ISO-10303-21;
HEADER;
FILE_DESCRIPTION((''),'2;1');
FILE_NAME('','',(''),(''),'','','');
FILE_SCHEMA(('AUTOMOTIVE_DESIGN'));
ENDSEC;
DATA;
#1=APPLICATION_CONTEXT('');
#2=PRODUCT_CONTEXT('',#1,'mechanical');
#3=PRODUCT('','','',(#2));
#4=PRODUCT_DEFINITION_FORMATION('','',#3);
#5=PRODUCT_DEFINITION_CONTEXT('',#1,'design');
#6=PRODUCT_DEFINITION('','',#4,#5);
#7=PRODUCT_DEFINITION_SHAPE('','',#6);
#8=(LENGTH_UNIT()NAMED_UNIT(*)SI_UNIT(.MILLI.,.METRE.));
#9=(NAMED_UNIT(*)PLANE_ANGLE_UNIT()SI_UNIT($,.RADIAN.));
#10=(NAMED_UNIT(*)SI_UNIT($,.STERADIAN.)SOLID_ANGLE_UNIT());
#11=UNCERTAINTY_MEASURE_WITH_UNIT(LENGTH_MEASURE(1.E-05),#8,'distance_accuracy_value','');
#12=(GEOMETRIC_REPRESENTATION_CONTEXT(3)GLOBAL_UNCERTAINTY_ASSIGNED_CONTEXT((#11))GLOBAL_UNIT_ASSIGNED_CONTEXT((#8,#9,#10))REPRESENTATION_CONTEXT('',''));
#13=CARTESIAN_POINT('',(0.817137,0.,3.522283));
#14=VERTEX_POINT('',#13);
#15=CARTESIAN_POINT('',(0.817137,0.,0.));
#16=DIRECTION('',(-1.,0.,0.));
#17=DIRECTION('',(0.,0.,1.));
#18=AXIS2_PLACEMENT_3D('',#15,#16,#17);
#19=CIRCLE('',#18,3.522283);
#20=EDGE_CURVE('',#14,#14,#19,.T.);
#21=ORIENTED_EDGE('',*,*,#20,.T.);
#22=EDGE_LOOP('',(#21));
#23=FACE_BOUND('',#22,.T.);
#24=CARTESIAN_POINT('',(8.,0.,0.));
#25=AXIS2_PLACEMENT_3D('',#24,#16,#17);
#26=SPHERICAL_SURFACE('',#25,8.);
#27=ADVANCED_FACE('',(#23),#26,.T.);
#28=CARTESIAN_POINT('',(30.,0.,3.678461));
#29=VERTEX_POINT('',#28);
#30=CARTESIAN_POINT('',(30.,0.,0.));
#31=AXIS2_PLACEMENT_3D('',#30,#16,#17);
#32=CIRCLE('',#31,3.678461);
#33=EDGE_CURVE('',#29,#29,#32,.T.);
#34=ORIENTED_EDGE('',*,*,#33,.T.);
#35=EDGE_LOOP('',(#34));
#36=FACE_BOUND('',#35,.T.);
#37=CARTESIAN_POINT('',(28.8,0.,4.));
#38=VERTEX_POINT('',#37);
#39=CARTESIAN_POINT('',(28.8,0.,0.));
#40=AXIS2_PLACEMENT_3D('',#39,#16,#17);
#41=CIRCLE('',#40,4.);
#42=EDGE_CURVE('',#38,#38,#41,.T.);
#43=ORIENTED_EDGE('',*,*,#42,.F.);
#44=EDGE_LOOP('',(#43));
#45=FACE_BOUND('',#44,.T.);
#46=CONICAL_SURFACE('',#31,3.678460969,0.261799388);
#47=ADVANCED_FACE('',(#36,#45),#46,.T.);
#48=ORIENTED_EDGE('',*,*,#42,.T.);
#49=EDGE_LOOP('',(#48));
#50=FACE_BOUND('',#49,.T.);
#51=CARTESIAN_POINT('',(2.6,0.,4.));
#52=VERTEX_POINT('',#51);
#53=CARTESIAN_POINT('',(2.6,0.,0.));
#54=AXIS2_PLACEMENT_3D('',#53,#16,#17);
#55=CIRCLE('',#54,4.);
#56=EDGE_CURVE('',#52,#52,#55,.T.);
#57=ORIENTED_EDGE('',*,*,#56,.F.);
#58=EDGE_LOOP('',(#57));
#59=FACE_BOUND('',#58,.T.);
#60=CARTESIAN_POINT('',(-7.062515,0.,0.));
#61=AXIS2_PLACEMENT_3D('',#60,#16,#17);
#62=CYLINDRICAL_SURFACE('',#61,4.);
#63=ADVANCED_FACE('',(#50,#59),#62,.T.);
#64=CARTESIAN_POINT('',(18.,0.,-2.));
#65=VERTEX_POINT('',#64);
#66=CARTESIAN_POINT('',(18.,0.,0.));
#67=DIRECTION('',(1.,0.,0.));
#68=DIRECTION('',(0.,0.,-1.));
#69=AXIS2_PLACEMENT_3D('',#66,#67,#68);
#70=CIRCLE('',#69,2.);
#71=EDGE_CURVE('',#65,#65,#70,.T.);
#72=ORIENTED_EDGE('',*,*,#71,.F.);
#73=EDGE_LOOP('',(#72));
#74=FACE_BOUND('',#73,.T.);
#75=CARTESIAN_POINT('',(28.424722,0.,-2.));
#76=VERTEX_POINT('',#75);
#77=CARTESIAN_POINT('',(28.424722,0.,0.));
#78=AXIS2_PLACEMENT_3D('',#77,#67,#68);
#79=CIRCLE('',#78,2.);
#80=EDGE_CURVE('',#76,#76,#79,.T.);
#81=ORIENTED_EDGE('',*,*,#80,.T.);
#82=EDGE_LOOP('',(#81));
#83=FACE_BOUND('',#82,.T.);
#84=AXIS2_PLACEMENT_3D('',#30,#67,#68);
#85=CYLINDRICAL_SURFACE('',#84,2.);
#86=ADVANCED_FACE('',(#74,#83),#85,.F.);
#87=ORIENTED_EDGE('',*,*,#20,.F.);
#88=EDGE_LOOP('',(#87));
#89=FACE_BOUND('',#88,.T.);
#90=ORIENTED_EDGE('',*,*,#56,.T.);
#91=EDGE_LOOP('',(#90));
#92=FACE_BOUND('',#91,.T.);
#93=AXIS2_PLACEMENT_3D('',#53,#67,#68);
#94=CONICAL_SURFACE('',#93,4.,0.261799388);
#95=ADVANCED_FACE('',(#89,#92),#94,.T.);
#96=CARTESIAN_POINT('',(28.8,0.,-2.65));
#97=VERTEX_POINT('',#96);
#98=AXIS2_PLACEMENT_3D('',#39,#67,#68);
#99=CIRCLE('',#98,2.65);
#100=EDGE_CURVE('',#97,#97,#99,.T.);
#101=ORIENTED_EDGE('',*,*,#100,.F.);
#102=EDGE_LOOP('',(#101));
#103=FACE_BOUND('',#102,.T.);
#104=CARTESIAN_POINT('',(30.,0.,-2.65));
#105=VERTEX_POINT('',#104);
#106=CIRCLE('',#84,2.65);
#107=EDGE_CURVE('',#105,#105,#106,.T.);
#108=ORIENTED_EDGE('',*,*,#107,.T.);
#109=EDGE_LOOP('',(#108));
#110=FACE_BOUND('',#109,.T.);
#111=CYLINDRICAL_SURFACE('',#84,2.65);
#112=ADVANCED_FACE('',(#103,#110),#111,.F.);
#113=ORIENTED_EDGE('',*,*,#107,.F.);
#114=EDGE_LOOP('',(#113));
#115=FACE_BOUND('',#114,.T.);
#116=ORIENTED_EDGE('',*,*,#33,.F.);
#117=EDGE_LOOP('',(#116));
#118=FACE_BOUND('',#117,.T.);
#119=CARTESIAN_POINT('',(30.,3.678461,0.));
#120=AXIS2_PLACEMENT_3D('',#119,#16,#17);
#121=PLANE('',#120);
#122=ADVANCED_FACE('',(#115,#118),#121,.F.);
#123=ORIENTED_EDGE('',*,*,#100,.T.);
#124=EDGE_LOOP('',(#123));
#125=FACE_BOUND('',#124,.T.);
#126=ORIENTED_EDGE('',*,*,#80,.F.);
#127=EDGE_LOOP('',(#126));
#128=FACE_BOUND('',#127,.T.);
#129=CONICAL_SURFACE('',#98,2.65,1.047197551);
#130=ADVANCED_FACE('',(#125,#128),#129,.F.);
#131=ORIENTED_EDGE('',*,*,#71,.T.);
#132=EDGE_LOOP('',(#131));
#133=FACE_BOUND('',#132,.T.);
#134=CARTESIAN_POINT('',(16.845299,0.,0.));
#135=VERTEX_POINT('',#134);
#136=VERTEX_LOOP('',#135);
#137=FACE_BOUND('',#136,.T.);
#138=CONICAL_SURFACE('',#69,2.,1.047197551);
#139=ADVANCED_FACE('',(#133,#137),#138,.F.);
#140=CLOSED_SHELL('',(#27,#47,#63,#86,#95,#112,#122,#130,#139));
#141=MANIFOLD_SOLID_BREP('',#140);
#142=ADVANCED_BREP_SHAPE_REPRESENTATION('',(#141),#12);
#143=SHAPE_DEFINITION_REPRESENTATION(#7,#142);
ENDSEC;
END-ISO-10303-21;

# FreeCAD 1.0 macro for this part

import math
import FreeCAD as App
import Part
import Sketcher

V = App.Vector
Q = App.Units.Quantity

doc = App.newDocument("Part")
body = doc.addObject("PartDesign::Body", "Body")

sketch1 = doc.addObject("Sketcher::SketchObject", "Sketch")
body.addObject(sketch1)
sketch1.AttachmentSupport = (doc.XY_Plane, [""])
sketch1.MapMode = "FlatFace"
sketch1.addGeometry(Part.LineSegment(V(2.6, 4, 0), V(0.817137, 3.522283, 0)), False)
sketch1.addGeometry(Part.ArcOfCircle(Part.Circle(V(8, 0, 0), V(0, 0, 1), 8), math.radians(153.877907), math.radians(180)), False)
sketch1.addGeometry(Part.LineSegment(V(0, 0, 0), V(30, 0, 0)), False)
sketch1.addGeometry(Part.LineSegment(V(30, 0, 0), V(30, 3.678461, 0)), False)
sketch1.addGeometry(Part.LineSegment(V(30, 3.678461, 0), V(28.8, 4, 0)), False)
sketch1.addGeometry(Part.LineSegment(V(28.8, 4, 0), V(2.6, 4, 0)), False)
sketch1.addConstraint(Sketcher.Constraint("Coincident", 0, 2, 1, 1))
sketch1.addConstraint(Sketcher.Constraint("Coincident", 1, 2, 2, 1))
sketch1.addConstraint(Sketcher.Constraint("Coincident", 2, 2, 3, 1))
sketch1.addConstraint(Sketcher.Constraint("Coincident", 3, 2, 4, 1))
sketch1.addConstraint(Sketcher.Constraint("Coincident", 4, 2, 5, 1))
sketch1.addConstraint(Sketcher.Constraint("Coincident", 5, 2, 0, 1))
sketch1.addConstraint(Sketcher.Constraint("Horizontal", 2))
sketch1.addConstraint(Sketcher.Constraint("Vertical", 3))
sketch1.addConstraint(Sketcher.Constraint("Horizontal", 5))
sketch1.addConstraint(Sketcher.Constraint("Coincident", 1, 2, -1, 1))
sketch1.addConstraint(Sketcher.Constraint("PointOnObject", 1, 3, -1))
sketch1.addConstraint(Sketcher.Constraint("Radius", 1, Q("8 mm")))
sketch1.addConstraint(Sketcher.Constraint("DistanceX", 2, 1, 2, 2, Q("30 mm")))
sketch1.addConstraint(Sketcher.Constraint("Angle", 0, Q("-165 deg")))
sketch1.addConstraint(Sketcher.Constraint("Angle", 4, Q("165 deg")))
sketch1.addConstraint(Sketcher.Constraint("DistanceX", 5, 2, 5, 1, Q("26.2 mm")))
sketch1.addConstraint(Sketcher.Constraint("DistanceY", -1, 1, 4, 2, Q("4 mm")))
sketch1.addConstraint(Sketcher.Constraint("DistanceX", -1, 1, 4, 2, Q("28.8 mm")))
revolution = doc.addObject("PartDesign::Revolution", "Revolution")
body.addObject(revolution)
revolution.Profile = sketch1
revolution.ReferenceAxis = (sketch1, ["H_Axis"])
revolution.Angle = 360

sketch2 = doc.addObject("Sketcher::SketchObject", "Sketch001")
body.addObject(sketch2)
sketch2.AttachmentSupport = (doc.YZ_Plane, [""])
sketch2.MapMode = "FlatFace"
sketch2.AttachmentOffset = App.Placement(V(0, 0, 30), App.Rotation())
sketch2.addGeometry(Part.Circle(V(0, 0, 0), V(0, 0, 1), 2), False)
sketch2.addConstraint(Sketcher.Constraint("Coincident", 0, 3, -1, 1))
sketch2.addConstraint(Sketcher.Constraint("Diameter", 0, Q("4 mm")))
doc.recompute()
hole = doc.addObject("PartDesign::Hole", "Hole")
body.addObject(hole)
hole.Profile = sketch2
hole.ThreadType = "None"
hole.Diameter = 4
hole.DepthType = "Dimension"
hole.Depth = 12
hole.DrillPoint = "Angled"
hole.DrillPointAngle = 120

sketch3 = doc.addObject("Sketcher::SketchObject", "Sketch002")
body.addObject(sketch3)
sketch3.AttachmentSupport = (doc.YZ_Plane, [""])
sketch3.MapMode = "FlatFace"
sketch3.AttachmentOffset = App.Placement(V(0, 0, 30), App.Rotation())
sketch3.addGeometry(Part.Circle(V(0, 0, 0), V(0, 0, 1), 2.65), False)
sketch3.addConstraint(Sketcher.Constraint("Coincident", 0, 3, -1, 1))
sketch3.addConstraint(Sketcher.Constraint("Diameter", 0, Q("5.3 mm")))
doc.recompute()
hole2 = doc.addObject("PartDesign::Hole", "Hole001")
body.addObject(hole2)
hole2.Profile = sketch3
hole2.ThreadType = "None"
hole2.Diameter = 5.3
hole2.DepthType = "Dimension"
hole2.Depth = 1.2
hole2.DrillPoint = "Angled"
hole2.DrillPointAngle = 120

doc.recompute()
